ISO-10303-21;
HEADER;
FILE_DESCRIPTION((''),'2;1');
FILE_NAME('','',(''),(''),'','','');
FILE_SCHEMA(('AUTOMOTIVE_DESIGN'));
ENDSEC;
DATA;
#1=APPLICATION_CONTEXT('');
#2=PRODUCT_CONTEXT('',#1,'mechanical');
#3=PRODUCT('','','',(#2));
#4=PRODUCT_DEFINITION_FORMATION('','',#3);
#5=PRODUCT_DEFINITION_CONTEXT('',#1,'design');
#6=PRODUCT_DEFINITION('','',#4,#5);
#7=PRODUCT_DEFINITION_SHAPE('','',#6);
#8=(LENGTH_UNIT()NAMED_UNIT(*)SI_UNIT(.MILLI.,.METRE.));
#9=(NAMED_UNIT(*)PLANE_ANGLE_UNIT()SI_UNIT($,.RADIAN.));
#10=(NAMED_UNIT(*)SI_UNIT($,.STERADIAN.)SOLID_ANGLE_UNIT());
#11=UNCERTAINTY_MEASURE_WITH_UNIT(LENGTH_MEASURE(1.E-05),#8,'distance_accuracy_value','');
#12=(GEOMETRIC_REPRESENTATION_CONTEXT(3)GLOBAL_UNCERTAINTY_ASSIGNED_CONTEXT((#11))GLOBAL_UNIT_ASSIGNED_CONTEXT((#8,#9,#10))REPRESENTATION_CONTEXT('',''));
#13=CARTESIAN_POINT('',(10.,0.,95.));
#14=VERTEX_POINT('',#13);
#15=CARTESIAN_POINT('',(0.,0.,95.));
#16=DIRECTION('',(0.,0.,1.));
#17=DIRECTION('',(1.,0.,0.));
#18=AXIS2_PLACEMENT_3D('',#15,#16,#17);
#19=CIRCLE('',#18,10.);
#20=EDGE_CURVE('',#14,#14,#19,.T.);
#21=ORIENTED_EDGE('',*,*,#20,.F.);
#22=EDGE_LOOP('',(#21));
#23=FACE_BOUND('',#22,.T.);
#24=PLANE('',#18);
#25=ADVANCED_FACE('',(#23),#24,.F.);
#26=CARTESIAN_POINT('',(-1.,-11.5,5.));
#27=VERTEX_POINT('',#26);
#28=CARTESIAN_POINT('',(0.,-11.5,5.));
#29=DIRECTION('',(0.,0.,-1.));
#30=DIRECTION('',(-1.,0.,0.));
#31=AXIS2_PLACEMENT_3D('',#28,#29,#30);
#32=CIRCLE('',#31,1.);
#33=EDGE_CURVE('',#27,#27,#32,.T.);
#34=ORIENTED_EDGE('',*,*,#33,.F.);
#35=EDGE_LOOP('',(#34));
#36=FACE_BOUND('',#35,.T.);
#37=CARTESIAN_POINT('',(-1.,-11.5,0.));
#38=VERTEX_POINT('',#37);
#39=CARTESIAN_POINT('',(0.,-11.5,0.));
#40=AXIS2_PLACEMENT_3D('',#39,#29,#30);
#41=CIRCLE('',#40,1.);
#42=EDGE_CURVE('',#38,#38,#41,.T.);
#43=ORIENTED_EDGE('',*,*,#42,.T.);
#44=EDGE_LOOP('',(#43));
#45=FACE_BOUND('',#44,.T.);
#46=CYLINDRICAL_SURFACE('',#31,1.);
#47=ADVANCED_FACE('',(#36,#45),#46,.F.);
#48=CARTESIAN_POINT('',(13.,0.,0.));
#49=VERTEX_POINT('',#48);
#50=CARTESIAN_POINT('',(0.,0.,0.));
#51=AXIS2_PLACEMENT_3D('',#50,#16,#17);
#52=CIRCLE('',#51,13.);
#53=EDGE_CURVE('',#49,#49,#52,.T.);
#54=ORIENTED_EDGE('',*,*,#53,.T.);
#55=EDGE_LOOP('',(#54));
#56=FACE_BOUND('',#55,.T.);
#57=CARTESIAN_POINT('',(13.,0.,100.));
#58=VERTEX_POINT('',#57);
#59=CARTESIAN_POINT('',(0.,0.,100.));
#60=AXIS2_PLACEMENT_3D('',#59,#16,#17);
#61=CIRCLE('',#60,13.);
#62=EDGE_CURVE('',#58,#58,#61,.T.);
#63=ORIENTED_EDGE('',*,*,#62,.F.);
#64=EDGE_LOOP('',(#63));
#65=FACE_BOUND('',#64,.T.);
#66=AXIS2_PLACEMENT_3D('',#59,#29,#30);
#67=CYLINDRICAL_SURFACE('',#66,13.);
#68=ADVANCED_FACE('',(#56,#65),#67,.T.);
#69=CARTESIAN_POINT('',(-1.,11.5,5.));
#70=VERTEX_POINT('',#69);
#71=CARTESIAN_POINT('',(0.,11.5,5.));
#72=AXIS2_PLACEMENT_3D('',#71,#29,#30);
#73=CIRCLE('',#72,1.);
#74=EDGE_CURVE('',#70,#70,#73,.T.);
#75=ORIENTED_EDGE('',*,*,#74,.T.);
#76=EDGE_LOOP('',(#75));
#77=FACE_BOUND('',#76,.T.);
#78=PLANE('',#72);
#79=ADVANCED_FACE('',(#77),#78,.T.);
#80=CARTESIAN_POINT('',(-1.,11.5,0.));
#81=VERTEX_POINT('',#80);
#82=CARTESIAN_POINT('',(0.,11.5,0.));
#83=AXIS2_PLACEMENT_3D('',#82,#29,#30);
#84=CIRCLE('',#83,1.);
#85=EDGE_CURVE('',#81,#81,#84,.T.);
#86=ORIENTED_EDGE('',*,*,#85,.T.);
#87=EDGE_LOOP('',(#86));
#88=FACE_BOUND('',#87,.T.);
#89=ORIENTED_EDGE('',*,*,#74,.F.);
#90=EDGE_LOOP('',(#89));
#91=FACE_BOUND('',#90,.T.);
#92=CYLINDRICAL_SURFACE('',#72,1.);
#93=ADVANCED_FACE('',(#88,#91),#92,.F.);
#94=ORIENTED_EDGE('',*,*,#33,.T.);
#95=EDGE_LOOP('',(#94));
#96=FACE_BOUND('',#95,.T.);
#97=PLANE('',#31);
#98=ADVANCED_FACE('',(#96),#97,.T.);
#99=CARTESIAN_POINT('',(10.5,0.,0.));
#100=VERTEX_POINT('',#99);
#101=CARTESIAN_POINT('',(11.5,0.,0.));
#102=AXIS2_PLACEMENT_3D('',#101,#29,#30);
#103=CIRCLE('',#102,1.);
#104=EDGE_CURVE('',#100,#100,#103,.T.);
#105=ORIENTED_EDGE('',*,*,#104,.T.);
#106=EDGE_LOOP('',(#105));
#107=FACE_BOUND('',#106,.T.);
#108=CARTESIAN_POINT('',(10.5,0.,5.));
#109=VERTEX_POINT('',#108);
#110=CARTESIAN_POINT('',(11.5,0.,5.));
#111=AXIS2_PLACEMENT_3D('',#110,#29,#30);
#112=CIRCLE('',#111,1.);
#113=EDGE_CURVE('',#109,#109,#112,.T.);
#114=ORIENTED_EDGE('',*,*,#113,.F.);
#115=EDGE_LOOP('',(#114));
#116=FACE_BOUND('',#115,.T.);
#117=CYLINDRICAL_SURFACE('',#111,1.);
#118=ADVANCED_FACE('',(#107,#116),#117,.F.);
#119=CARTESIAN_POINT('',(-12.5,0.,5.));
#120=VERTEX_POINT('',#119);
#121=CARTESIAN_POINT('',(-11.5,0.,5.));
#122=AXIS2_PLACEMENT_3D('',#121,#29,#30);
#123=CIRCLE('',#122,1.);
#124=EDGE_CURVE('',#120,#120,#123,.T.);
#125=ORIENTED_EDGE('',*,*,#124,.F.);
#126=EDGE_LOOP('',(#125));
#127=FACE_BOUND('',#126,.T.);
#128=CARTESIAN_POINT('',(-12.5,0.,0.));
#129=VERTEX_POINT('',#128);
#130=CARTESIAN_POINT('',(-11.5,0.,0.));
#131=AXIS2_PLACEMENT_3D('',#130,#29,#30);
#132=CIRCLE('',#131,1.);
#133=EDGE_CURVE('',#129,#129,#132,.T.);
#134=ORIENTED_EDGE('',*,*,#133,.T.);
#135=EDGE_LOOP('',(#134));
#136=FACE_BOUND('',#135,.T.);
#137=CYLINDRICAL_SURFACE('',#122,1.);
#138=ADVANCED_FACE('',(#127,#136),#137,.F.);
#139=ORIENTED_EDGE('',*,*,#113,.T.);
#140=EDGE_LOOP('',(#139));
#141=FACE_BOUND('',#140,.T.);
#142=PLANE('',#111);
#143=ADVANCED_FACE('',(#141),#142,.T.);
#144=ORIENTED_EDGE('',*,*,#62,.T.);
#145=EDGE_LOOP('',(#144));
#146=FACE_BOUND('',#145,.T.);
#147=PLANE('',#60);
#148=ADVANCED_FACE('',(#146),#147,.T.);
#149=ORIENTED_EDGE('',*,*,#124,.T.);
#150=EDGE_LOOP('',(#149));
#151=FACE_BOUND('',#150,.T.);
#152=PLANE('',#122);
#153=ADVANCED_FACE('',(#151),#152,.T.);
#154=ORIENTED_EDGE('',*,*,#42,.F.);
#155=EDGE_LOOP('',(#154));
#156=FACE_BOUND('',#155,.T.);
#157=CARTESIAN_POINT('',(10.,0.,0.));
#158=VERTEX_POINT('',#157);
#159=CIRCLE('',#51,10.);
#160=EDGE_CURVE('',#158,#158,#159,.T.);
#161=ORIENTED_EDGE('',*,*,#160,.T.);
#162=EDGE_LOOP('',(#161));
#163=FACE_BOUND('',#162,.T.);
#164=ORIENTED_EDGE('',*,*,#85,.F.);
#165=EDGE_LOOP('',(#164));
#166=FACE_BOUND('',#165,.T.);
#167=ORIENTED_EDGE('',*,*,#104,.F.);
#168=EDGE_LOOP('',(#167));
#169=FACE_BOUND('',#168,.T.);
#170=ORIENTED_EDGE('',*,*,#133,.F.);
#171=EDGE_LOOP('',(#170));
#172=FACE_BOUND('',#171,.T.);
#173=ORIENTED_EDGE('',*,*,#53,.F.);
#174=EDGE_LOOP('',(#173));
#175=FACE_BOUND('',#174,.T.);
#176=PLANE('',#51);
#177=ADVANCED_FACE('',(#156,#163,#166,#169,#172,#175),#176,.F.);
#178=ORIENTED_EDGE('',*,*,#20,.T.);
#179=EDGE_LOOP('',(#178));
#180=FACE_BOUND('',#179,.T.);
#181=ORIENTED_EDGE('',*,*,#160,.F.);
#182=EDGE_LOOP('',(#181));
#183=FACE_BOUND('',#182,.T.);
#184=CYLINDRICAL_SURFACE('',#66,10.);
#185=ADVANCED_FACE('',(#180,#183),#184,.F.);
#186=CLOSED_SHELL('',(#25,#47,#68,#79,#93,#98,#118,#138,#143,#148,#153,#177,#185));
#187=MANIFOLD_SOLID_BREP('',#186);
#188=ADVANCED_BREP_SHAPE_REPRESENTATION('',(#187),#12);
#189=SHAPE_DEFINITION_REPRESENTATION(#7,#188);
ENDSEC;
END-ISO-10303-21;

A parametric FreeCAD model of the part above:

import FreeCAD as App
import Part
import Sketcher
from FreeCAD import Vector

doc = App.newDocument("Part")
body = doc.addObject("PartDesign::Body", "Body")

sketch1 = doc.addObject("Sketcher::SketchObject", "Sketch")
body.addObject(sketch1)
sketch1.AttachmentSupport = (doc.XY_Plane, [""])
sketch1.MapMode = "FlatFace"
sketch1.addGeometry(Part.Circle(Vector(0, 0, 0), Vector(0, 0, 1), 13), False)
sketch1.addGeometry(Part.Circle(Vector(0, 0, 0), Vector(0, 0, 1), 10), False)
sketch1.addConstraint(Sketcher.Constraint("Coincident", 0, 3, -1, 1))
sketch1.addConstraint(Sketcher.Constraint("Coincident", 1, 3, -1, 1))
sketch1.addConstraint(Sketcher.Constraint("Diameter", 0, 26.0))
sketch1.addConstraint(Sketcher.Constraint("Diameter", 1, 20.0))
pad1 = doc.addObject("PartDesign::Pad", "Pad")
body.addObject(pad1)
pad1.Profile = sketch1
pad1.Length = 100

sketch2 = doc.addObject("Sketcher::SketchObject", "Sketch001")
body.addObject(sketch2)
sketch2.AttachmentSupport = (doc.XY_Plane, [""])
sketch2.MapMode = "FlatFace"
sketch2.AttachmentOffset = App.Placement(Vector(0, 0, 95), App.Rotation())
sketch2.addGeometry(Part.Circle(Vector(0, 0, 0), Vector(0, 0, 1), 13), False)
sketch2.addConstraint(Sketcher.Constraint("Coincident", 0, 3, -1, 1))
sketch2.addConstraint(Sketcher.Constraint("Diameter", 0, 26.0))
pad2 = doc.addObject("PartDesign::Pad", "Pad001")
body.addObject(pad2)
pad2.Profile = sketch2
pad2.Length = 5

sketch3 = doc.addObject("Sketcher::SketchObject", "Sketch002")
body.addObject(sketch3)
sketch3.AttachmentSupport = (doc.XY_Plane, [""])
sketch3.MapMode = "FlatFace"
sketch3.addGeometry(Part.Circle(Vector(0, 11.5, 0), Vector(0, 0, 1), 1), False)
sketch3.addGeometry(Part.Circle(Vector(-11.5, 0, 0), Vector(0, 0, 1), 1), False)
sketch3.addGeometry(Part.Circle(Vector(0, -11.5, 0), Vector(0, 0, 1), 1), False)
sketch3.addGeometry(Part.Circle(Vector(11.5, 0, 0), Vector(0, 0, 1), 1), False)
sketch3.addConstraint(Sketcher.Constraint("Equal", 0, 1))
sketch3.addConstraint(Sketcher.Constraint("Equal", 1, 2))
sketch3.addConstraint(Sketcher.Constraint("Equal", 2, 3))
sketch3.addConstraint(Sketcher.Constraint("Symmetric", 0, 3, 2, 3, -1, 1))
sketch3.addConstraint(Sketcher.Constraint("Symmetric", 1, 3, 3, 3, -1, 1))
sketch3.addConstraint(Sketcher.Constraint("PointOnObject", 0, 3, -2))
sketch3.addConstraint(Sketcher.Constraint("PointOnObject", 1, 3, -1))
sketch3.addConstraint(Sketcher.Constraint("Diameter", 0, 2.0))
sketch3.addConstraint(Sketcher.Constraint("DistanceY", 2, 3, 0, 3, 23.0))
sketch3.addConstraint(Sketcher.Constraint("DistanceX", 1, 3, 3, 3, 23.0))
pocket1 = doc.addObject("PartDesign::Pocket", "Pocket")
body.addObject(pocket1)
pocket1.Profile = sketch3
pocket1.Length = 5
pocket1.Reversed = True

doc.recompute()
